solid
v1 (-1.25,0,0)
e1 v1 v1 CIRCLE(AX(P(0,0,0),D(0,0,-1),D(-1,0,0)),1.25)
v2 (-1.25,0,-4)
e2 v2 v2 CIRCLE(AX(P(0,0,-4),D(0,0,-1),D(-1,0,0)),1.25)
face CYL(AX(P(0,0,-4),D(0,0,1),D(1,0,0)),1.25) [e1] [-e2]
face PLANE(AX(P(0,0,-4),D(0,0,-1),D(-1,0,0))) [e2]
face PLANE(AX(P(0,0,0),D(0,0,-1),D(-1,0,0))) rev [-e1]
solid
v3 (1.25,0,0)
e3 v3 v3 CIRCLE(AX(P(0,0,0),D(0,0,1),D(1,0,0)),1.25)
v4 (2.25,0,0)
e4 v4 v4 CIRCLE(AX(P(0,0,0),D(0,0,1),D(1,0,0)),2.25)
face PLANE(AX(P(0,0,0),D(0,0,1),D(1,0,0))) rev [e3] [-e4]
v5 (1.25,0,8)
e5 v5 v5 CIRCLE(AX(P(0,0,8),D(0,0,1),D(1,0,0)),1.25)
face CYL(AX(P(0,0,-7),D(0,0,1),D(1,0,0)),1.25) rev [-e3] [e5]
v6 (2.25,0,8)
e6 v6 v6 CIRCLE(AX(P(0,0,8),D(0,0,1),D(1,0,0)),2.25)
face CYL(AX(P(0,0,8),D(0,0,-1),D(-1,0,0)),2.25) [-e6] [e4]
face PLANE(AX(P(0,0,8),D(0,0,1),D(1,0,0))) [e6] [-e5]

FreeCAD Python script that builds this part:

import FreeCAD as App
import Part
import Sketcher

V = App.Vector
Q = App.Units.Quantity

doc = App.newDocument("Part")
body = doc.addObject("PartDesign::Body", "Body")

sketch1 = body.newObject("Sketcher::SketchObject", "Sketch")
sketch1.AttachmentSupport = (doc.getObject("XY_Plane"), [""])
sketch1.MapMode = "FlatFace"
sketch1.addGeometry(Part.Circle(V(0, 0, 0), V(0, 0, 1), 2.25), False)
sketch1.addConstraint([
    Sketcher.Constraint("Coincident", 0, 3, -1, 1),
    Sketcher.Constraint("Diameter", 0, Q("4.5 mm")),
])
pad1 = body.newObject("PartDesign::Pad", "Pad")
pad1.Profile = sketch1
pad1.Length = 8

sketch2 = body.newObject("Sketcher::SketchObject", "Sketch001")
sketch2.AttachmentSupport = (doc.getObject("XY_Plane"), [""])
sketch2.MapMode = "FlatFace"
sketch2.AttachmentOffset = App.Placement(V(0, 0, 8), App.Rotation())
sketch2.addGeometry(Part.Circle(V(0, 0, 0), V(0, 0, 1), 1.25), False)
sketch2.addConstraint([
    Sketcher.Constraint("Coincident", 0, 3, -1, 1),
    Sketcher.Constraint("Diameter", 0, Q("2.5 mm")),
])
pocket1 = body.newObject("PartDesign::Pocket", "Pocket")
pocket1.Profile = sketch2
pocket1.Length = 15
body2 = doc.addObject("PartDesign::Body", "Body001")

sketch3 = body2.newObject("Sketcher::SketchObject", "Sketch002")
sketch3.AttachmentSupport = (doc.getObject("XY_Plane001"), [""])
sketch3.MapMode = "FlatFace"
sketch3.addGeometry(Part.Circle(V(0, 0, 0), V(0, 0, 1), 1.25), False)
sketch3.addConstraint([
    Sketcher.Constraint("Coincident", 0, 3, -1, 1),
    Sketcher.Constraint("Diameter", 0, Q("2.5 mm")),
])
pad2 = body2.newObject("PartDesign::Pad", "Pad001")
pad2.Profile = sketch3
pad2.Length = 4
pad2.Reversed = True

doc.recompute()
